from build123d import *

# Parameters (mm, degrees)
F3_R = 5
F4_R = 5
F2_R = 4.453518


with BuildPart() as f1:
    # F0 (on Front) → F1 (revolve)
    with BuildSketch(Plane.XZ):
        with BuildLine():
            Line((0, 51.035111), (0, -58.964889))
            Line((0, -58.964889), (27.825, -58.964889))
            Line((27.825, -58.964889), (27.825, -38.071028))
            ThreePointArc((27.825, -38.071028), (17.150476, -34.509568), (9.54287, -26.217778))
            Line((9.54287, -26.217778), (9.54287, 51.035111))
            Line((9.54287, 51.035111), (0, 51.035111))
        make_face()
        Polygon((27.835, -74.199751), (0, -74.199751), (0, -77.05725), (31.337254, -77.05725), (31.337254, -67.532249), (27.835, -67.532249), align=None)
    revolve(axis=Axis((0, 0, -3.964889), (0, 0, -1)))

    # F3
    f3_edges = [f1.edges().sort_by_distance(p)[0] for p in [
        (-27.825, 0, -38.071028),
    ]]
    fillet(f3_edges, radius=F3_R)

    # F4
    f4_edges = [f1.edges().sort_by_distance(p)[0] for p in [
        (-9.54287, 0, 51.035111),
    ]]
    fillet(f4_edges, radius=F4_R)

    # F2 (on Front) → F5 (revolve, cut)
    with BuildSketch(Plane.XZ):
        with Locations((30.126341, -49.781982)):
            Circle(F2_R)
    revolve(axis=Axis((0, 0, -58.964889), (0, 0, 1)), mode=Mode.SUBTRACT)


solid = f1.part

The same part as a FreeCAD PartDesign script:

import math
import FreeCAD as App
import Part
import Sketcher

V = App.Vector


def edges_at(feature, points):
    """Names of the edges that pass closest to the given points."""
    edges = feature.Shape.Edges
    near = lambda p: min(range(len(edges)), key=lambda i: edges[i].distToShape(Part.Vertex(*p))[0])
    return sorted({f"Edge{near(p) + 1}" for p in points})

doc = App.newDocument("Part")
body = doc.addObject("PartDesign::Body", "Body")
body.AllowCompound = True

sketch1 = body.newObject("Sketcher::SketchObject", "Sketch")
sketch1.AttachmentSupport = (doc.getObject("XZ_Plane"), [""])
sketch1.MapMode = "FlatFace"
sketch1.addGeometry([
    Part.LineSegment(V(0, 51, 0), V(0, -59, 0)),
    Part.LineSegment(V(0, -59, 0), V(27.8, -59, 0)),
    Part.LineSegment(V(27.8, -59, 0), V(27.8, -38.1, 0)),
    Part.ArcOfCircle(Part.Circle(V(29.4, -15.7, 0), V(0, 0, 1), 22.5), math.radians(-152), math.radians(-94)),
    Part.LineSegment(V(9.5, -26.2, 0), V(9.5, 51, 0)),
    Part.LineSegment(V(9.5, 51, 0), V(0, 51, 0)),
    Part.LineSegment(V(27.8, -74.2, 0), V(0, -74.2, 0)),
    Part.LineSegment(V(0, -74.2, 0), V(0, -77.1, 0)),
    Part.LineSegment(V(0, -77.1, 0), V(31.3, -77.1, 0)),
    Part.LineSegment(V(31.3, -77.1, 0), V(31.3, -67.5, 0)),
    Part.LineSegment(V(31.3, -67.5, 0), V(27.8, -67.5, 0)),
    Part.LineSegment(V(27.8, -67.5, 0), V(27.8, -74.2, 0)),
], False)
sketch1.addConstraint([
    Sketcher.Constraint("Coincident", 0, 2, 1, 1),
    Sketcher.Constraint("Coincident", 1, 2, 2, 1),
    Sketcher.Constraint("Coincident", 2, 2, 3, 2),
    Sketcher.Constraint("Coincident", 3, 1, 4, 1),
    Sketcher.Constraint("Coincident", 4, 2, 5, 1),
    Sketcher.Constraint("Coincident", 5, 2, 0, 1),
    Sketcher.Constraint("Coincident", 6, 2, 7, 1),
    Sketcher.Constraint("Coincident", 7, 2, 8, 1),
    Sketcher.Constraint("Coincident", 8, 2, 9, 1),
    Sketcher.Constraint("Coincident", 9, 2, 10, 1),
    Sketcher.Constraint("Coincident", 10, 2, 11, 1),
    Sketcher.Constraint("Coincident", 11, 2, 6, 1),
    Sketcher.Constraint("Vertical", 0),
    Sketcher.Constraint("Horizontal", 1),
    Sketcher.Constraint("Vertical", 2),
    Sketcher.Constraint("Vertical", 4),
    Sketcher.Constraint("Horizontal", 5),
    Sketcher.Constraint("Horizontal", 6),
    Sketcher.Constraint("Vertical", 7),
    Sketcher.Constraint("Horizontal", 8),
    Sketcher.Constraint("Vertical", 9),
    Sketcher.Constraint("Horizontal", 10),
    Sketcher.Constraint("Vertical", 11),
    Sketcher.Constraint("PointOnObject", 0, 2, -2),
    Sketcher.Constraint("PointOnObject", 6, 2, -2),
    Sketcher.Constraint("DistanceY", 0, 2, 0, 1, 110.0),
    Sketcher.Constraint("DistanceX", 1, 1, 1, 2, 27.825),
    Sketcher.Constraint("DistanceX", 6, 2, 6, 1, 27.835),
    Sketcher.Constraint("DistanceY", 9, 1, 9, 2, 9.525001),
    Sketcher.Constraint("DistanceY", 7, 2, 7, 1, 2.857499),
    Sketcher.Constraint("Radius", 3, 22.461775),
    Sketcher.Constraint("DistanceX", 5, 2, 5, 1, 9.54287),
    Sketcher.Constraint("DistanceY", 2, 1, 2, 2, 20.893861),
    Sketcher.Constraint("DistanceY", 4, 1, 4, 2, 77.252889),
    Sketcher.Constraint("DistanceX", 8, 1, 8, 2, 31.337254),
    Sketcher.Constraint("DistanceY", 0, 2, -1, 1, 58.964889),
    Sketcher.Constraint("DistanceY", 6, 2, -1, 1, 74.199751),
])
revolution = body.newObject("PartDesign::Revolution", "Revolution")
revolution.Profile = sketch1
revolution.ReferenceAxis = (sketch1, ["V_Axis"])
revolution.Angle = 360
doc.recompute()

fillet = body.newObject("PartDesign::Fillet", "Fillet")
fillet.Base = (revolution, edges_at(revolution, [(-27.825, 0, -38.071)]))
fillet.Radius = 5
doc.recompute()

fillet2 = body.newObject("PartDesign::Fillet", "Fillet001")
fillet2.Base = (fillet, edges_at(fillet, [(-9.543, 0, 51.035)]))
fillet2.Radius = 5

sketch2 = body.newObject("Sketcher::SketchObject", "Sketch001")
sketch2.AttachmentSupport = (doc.getObject("XZ_Plane"), [""])
sketch2.MapMode = "FlatFace"
sketch2.addGeometry(Part.Circle(V(30.1, -49.8, 0), V(0, 0, 1), 4.5), False)
sketch2.addConstraint([
    Sketcher.Constraint("Diameter", 0, 8.907036),
    Sketcher.Constraint("DistanceX", -1, 1, 0, 3, 30.126341),
    Sketcher.Constraint("DistanceY", 0, 3, -1, 1, 49.781982),
])
groove = body.newObject("PartDesign::Groove", "Groove")
groove.Profile = sketch2
groove.ReferenceAxis = (sketch2, ["V_Axis"])
groove.Angle = 360

doc.recompute()
